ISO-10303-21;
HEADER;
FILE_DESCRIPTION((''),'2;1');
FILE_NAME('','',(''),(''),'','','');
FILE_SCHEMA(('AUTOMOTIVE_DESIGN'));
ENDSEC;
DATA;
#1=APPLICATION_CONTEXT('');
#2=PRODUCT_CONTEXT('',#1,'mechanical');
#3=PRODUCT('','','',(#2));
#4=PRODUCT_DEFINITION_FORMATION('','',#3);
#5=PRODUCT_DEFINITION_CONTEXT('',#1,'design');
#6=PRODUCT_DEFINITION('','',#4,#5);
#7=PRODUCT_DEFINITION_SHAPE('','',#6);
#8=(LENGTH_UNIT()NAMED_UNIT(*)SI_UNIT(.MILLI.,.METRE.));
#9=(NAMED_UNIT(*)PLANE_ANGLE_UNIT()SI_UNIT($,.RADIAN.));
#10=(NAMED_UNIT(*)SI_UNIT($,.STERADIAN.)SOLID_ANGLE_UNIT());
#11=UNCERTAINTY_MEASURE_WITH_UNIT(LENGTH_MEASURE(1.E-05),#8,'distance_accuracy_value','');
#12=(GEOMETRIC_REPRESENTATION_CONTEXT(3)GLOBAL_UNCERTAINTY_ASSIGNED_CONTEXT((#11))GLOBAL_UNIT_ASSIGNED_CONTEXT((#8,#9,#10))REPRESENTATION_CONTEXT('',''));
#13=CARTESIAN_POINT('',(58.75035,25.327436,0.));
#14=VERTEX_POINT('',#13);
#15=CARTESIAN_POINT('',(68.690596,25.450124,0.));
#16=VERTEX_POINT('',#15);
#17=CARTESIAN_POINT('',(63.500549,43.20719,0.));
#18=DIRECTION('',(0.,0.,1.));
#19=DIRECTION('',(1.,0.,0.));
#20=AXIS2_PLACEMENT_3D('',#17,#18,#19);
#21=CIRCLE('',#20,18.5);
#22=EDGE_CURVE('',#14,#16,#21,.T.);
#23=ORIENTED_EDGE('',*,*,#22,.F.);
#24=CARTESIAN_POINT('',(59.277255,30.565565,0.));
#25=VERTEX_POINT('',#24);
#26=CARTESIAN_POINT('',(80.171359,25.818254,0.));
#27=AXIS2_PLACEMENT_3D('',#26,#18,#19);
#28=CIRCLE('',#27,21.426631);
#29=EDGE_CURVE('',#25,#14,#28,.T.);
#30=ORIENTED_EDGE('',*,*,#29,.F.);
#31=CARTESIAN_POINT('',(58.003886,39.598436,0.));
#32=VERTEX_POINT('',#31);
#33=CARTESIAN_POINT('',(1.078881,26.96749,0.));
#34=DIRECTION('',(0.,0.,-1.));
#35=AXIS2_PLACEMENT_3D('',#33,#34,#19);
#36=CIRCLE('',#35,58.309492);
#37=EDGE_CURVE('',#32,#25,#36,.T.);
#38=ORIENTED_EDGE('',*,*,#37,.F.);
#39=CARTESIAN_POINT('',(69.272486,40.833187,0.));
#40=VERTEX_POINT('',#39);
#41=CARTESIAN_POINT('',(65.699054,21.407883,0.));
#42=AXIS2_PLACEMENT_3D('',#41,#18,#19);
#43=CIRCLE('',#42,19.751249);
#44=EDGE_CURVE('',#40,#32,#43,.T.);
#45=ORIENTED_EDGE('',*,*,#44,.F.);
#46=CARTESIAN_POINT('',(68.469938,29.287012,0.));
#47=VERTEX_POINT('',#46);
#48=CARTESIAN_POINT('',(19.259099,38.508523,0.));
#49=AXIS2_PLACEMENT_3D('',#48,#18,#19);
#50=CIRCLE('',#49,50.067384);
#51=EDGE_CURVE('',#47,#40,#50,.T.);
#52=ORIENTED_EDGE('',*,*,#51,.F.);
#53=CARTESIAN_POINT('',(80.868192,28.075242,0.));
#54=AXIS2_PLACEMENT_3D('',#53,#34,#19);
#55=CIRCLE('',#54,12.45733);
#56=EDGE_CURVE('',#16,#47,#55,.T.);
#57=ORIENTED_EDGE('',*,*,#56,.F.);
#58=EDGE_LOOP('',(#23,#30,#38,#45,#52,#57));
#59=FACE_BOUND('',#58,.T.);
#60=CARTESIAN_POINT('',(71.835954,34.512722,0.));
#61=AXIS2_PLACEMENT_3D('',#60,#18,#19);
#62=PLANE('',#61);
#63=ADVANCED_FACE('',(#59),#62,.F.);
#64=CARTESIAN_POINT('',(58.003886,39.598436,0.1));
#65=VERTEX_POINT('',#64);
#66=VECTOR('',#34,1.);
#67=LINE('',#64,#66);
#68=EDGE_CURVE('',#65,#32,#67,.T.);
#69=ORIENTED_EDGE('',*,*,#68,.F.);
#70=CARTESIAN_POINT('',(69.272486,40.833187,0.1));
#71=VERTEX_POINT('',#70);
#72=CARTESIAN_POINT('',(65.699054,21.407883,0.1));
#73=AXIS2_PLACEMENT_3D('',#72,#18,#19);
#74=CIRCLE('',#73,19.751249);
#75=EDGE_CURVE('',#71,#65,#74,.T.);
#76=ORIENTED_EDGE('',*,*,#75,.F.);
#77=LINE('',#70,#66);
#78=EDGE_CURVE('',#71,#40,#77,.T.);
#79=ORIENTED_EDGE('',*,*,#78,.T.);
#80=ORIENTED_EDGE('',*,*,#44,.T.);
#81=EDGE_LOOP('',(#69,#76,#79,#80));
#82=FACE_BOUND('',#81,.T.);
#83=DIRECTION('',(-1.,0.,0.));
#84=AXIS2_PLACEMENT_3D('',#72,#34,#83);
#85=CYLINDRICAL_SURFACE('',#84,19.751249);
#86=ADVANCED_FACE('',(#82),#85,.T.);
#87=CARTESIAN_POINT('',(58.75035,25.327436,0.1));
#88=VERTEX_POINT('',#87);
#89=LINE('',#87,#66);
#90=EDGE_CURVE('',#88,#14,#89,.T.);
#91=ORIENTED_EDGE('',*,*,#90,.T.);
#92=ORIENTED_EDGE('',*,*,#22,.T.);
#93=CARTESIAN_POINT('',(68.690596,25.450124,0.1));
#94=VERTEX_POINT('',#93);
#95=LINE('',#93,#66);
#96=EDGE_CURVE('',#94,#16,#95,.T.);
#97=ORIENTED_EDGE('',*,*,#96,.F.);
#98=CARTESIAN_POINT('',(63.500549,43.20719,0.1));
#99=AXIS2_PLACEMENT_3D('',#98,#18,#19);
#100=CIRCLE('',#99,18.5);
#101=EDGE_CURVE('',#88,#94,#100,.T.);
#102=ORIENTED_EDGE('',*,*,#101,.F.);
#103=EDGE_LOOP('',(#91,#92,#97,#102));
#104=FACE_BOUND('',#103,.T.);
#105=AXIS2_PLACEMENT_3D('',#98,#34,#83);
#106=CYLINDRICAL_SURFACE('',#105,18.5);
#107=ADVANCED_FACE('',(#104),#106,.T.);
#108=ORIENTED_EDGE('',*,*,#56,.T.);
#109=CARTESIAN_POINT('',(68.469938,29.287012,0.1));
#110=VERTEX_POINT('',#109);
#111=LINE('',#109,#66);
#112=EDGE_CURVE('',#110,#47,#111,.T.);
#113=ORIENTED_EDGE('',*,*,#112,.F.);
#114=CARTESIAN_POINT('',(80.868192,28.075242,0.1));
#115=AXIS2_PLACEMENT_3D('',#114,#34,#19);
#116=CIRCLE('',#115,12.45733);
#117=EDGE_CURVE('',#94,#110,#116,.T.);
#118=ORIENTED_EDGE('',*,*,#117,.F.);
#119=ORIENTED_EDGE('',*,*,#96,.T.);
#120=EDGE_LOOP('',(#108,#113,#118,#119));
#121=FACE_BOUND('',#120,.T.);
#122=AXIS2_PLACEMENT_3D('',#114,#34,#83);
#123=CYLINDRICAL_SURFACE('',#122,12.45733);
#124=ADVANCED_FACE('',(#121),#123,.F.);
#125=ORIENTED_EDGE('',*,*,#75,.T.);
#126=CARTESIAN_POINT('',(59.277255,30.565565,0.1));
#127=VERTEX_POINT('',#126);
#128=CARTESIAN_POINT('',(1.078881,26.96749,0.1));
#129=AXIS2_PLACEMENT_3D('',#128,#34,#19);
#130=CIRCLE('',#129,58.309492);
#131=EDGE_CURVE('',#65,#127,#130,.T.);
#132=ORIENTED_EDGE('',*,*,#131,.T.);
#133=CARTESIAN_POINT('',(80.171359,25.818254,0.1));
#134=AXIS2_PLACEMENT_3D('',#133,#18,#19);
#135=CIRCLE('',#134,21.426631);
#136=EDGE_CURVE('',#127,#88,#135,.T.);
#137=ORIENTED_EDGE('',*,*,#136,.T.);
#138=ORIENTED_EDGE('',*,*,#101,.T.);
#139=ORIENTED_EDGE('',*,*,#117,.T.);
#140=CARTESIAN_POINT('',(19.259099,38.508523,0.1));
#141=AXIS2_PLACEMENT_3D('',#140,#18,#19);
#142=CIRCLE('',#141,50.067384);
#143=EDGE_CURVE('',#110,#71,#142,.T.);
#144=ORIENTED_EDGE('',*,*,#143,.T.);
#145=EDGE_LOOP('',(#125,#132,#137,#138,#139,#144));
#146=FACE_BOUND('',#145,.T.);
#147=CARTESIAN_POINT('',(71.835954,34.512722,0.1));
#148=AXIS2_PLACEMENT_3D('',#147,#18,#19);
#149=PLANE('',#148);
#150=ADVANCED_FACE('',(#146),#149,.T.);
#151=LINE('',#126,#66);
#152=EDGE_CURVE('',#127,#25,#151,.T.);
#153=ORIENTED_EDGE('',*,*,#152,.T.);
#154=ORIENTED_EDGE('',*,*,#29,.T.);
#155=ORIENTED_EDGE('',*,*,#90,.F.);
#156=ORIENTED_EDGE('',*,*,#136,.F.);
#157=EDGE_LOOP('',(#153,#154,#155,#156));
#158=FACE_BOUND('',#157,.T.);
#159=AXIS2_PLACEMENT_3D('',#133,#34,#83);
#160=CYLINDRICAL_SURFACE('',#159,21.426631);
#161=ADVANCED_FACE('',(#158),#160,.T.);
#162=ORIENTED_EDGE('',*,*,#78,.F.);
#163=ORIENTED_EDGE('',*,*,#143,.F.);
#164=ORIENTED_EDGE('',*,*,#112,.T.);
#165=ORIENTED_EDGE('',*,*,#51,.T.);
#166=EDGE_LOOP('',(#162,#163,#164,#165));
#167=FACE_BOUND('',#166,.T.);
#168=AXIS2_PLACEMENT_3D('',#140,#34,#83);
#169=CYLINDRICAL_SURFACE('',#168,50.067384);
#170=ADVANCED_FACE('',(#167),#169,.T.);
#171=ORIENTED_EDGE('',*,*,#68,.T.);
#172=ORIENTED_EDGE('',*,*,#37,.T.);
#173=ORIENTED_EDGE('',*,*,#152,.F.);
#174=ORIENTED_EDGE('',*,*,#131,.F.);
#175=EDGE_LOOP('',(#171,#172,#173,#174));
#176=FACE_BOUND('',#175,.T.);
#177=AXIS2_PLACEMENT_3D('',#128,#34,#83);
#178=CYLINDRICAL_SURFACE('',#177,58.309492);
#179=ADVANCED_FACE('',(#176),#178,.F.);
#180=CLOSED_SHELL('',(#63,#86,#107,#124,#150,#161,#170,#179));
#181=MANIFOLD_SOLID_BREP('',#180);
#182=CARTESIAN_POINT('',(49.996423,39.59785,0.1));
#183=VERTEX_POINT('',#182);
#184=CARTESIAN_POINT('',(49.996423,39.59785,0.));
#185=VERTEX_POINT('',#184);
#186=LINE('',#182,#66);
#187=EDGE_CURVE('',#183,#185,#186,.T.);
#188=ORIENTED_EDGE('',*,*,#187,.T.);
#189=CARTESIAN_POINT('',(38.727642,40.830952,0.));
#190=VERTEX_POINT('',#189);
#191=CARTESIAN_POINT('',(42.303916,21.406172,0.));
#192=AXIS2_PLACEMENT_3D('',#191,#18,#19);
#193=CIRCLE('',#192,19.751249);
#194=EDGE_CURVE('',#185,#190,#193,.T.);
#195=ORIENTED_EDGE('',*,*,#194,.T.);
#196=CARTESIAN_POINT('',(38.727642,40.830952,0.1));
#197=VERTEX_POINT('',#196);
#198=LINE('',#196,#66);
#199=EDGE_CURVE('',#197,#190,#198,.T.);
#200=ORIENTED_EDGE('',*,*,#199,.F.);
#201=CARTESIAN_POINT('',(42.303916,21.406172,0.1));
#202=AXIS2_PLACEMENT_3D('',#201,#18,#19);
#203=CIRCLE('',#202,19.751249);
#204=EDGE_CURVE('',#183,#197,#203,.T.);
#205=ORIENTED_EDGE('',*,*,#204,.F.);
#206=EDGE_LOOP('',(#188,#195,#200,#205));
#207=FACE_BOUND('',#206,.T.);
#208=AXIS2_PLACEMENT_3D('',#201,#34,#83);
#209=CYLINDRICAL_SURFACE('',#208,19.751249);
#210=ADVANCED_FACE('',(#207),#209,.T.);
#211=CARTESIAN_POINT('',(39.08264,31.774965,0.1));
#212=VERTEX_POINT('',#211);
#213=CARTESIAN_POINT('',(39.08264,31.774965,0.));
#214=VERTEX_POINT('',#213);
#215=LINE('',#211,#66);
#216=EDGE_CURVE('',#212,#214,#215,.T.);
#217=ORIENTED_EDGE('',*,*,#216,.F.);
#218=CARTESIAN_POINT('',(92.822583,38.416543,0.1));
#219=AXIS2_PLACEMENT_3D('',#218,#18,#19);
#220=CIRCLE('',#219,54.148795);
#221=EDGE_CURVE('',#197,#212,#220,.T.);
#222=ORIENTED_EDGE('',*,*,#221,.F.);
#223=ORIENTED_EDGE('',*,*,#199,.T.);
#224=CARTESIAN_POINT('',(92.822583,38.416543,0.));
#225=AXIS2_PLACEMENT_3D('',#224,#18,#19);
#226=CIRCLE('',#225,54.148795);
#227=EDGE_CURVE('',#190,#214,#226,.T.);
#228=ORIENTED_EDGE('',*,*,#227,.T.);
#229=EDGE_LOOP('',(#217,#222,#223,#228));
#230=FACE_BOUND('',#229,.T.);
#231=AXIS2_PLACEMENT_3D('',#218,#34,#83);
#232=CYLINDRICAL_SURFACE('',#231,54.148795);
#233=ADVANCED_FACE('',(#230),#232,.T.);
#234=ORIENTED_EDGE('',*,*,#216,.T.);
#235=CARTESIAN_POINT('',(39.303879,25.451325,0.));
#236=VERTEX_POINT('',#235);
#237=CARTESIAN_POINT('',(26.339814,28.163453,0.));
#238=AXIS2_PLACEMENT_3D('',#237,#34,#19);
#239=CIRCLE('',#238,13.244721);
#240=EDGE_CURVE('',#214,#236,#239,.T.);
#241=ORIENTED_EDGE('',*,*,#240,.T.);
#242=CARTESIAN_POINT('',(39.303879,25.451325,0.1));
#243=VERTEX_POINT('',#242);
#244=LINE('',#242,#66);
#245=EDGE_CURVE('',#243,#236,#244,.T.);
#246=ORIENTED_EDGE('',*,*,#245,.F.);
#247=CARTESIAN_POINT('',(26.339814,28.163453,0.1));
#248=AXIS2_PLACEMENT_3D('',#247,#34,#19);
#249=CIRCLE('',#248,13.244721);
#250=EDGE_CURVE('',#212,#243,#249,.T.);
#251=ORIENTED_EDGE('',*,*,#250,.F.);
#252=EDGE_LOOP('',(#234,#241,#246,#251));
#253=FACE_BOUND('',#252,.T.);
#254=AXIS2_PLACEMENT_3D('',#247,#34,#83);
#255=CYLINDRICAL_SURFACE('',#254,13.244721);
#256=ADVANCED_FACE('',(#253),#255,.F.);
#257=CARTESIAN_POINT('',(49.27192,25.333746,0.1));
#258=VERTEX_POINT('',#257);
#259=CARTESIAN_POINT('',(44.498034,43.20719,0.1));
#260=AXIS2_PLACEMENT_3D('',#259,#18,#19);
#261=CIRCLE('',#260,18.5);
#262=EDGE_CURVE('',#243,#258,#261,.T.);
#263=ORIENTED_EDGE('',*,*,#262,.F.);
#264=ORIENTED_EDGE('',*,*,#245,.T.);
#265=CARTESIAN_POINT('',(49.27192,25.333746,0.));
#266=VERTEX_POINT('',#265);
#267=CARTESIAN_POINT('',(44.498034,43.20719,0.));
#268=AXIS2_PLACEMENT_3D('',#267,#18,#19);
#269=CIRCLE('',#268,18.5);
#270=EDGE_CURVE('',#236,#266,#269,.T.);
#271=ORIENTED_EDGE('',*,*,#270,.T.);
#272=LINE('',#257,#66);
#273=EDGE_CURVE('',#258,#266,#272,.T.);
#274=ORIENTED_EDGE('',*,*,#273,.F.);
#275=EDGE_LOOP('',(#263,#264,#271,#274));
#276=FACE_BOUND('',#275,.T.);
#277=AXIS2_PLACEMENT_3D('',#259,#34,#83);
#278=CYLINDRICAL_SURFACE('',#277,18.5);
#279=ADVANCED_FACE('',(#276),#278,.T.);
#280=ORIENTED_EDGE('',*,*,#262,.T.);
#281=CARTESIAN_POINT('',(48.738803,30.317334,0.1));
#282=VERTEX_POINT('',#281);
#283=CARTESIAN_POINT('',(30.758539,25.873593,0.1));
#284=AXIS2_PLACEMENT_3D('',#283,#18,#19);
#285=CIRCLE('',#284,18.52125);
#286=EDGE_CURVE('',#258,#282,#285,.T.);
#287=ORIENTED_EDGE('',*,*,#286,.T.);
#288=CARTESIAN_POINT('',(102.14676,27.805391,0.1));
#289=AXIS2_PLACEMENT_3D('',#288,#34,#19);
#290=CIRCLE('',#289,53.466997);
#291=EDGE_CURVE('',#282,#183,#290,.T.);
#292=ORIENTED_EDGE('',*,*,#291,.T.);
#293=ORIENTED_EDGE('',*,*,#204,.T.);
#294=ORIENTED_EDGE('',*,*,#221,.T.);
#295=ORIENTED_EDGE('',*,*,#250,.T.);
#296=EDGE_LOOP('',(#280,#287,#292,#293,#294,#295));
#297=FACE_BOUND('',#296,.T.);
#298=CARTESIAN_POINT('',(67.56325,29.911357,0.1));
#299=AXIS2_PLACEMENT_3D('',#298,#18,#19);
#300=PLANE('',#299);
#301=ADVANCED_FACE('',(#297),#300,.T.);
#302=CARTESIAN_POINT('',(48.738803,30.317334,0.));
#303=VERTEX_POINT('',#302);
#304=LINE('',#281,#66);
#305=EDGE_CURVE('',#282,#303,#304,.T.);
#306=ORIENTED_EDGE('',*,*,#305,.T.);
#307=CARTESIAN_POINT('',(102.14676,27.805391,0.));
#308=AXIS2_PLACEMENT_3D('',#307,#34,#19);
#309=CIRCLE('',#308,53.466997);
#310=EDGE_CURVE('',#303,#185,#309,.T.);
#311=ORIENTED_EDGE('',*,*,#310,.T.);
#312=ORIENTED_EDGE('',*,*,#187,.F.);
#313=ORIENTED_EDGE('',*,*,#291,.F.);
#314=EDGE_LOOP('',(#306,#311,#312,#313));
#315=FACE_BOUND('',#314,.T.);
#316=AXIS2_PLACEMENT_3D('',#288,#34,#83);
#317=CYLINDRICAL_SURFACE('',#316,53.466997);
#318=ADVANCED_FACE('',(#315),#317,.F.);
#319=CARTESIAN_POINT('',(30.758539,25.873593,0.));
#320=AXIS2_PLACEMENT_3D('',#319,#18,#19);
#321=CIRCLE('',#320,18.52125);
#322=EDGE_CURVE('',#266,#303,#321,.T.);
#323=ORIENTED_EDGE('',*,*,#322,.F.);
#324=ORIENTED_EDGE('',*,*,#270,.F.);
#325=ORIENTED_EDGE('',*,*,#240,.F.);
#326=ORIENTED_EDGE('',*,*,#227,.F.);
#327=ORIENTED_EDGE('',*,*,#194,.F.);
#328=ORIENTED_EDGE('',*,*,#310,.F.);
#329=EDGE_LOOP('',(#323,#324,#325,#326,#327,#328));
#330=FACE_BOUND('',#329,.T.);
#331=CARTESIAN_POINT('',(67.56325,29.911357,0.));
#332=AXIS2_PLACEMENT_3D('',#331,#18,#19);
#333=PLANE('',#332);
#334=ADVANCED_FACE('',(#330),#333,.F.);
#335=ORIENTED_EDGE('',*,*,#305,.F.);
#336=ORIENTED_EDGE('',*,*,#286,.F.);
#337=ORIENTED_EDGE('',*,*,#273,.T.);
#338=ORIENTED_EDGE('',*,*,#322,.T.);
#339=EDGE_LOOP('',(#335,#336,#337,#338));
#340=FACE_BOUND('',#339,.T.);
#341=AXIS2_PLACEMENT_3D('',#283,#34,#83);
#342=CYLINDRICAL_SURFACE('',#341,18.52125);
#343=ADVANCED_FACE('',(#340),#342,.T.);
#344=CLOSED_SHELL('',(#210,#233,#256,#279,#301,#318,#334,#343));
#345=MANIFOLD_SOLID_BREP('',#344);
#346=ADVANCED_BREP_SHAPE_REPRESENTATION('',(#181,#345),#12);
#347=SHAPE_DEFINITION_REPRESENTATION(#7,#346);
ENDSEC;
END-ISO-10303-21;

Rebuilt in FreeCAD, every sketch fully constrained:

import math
import FreeCAD as App
import Part
import Sketcher
from FreeCAD import Vector

doc = App.newDocument("Part")
params = doc.addObject("Spreadsheet::Sheet", "Params")
for row, (alias, value) in enumerate([
    ("sketch1_radius", "18.5 mm"),
    ("pad1_length", "0.1 mm"),
    ("sketch2_radius", "18.5 mm"),
    ("pad2_length", "0.1 mm"),
], start=1):
    params.set(f"A{row}", alias)
    params.set(f"B{row}", "=" + value)
    params.setAlias(f"B{row}", alias)

body = doc.addObject("PartDesign::Body", "Body")

# Sketch on XY plane
sketch1 = body.newObject("Sketcher::SketchObject", "Sketch")
sketch1.AttachmentSupport = (doc.getObject("XY_Plane"), [""])
sketch1.MapMode = "FlatFace"
sketch1.addGeometry(Part.ArcOfCircle(Part.Circle(Vector(93, 38, 0), Vector(0, 0, 1), 54), math.radians(177.44), math.radians(187.05)), False)
sketch1.addGeometry(Part.ArcOfCircle(Part.Circle(Vector(26, 28, 0), Vector(0, 0, 1), 13), math.radians(-12), math.radians(16)), False)
sketch1.addGeometry(Part.ArcOfCircle(Part.Circle(Vector(44, 43, 0), Vector(0, 0, 1), 18), math.radians(-106), math.radians(-75)), False)
sketch1.addGeometry(Part.ArcOfCircle(Part.Circle(Vector(31, 26, 0), Vector(0, 0, 1), 19), math.radians(-1.67), math.radians(13.88)), False)
sketch1.addGeometry(Part.ArcOfCircle(Part.Circle(Vector(102, 28, 0), Vector(0, 0, 1), 53), math.radians(167.26), math.radians(177.31)), False)
sketch1.addGeometry(Part.ArcOfCircle(Part.Circle(Vector(42, 21, 0), Vector(0, 0, 1), 20), math.radians(67), math.radians(100)), False)
sketch1.addConstraint(Sketcher.Constraint("Coincident", 0, 2, 1, 2))
sketch1.addConstraint(Sketcher.Constraint("Coincident", 1, 1, 2, 1))
sketch1.addConstraint(Sketcher.Constraint("Coincident", 2, 2, 3, 1))
sketch1.addConstraint(Sketcher.Constraint("Coincident", 3, 2, 4, 2))
sketch1.addConstraint(Sketcher.Constraint("Coincident", 4, 1, 5, 1))
sketch1.addConstraint(Sketcher.Constraint("Coincident", 5, 2, 0, 1))
sketch1.addConstraint(Sketcher.Constraint("Radius", 2, 18.5))
sketch1.addConstraint(Sketcher.Constraint("Radius", 1, 13.244721))
sketch1.addConstraint(Sketcher.Constraint("Radius", 3, 18.521251))
sketch1.addConstraint(Sketcher.Constraint("Radius", 5, 19.751249))
sketch1.addConstraint(Sketcher.Constraint("Radius", 0, 54.148795))
sketch1.addConstraint(Sketcher.Constraint("Radius", 4, 53.466997))
sketch1.addConstraint(Sketcher.Constraint("DistanceX", 5, 2, 0, 2, 0.354998))
sketch1.addConstraint(Sketcher.Constraint("DistanceY", 4, 3, 2, 3, 15.401799))
sketch1.addConstraint(Sketcher.Constraint("DistanceY", 3, 3, 4, 3, 1.931799))
sketch1.addConstraint(Sketcher.Constraint("DistanceX", 3, 3, 0, 2, 8.324101))
sketch1.addConstraint(Sketcher.Constraint("DistanceY", 4, 1, 5, 2, 1.233102))
sketch1.addConstraint(Sketcher.Constraint("DistanceY", -1, 1, 2, 3, 43.20719))
sketch1.addConstraint(Sketcher.Constraint("DistanceX", -1, 1, 3, 3, 30.758539))
sketch1.addConstraint(Sketcher.Constraint("DistanceX", -1, 1, 4, 3, 102.14676))
sketch1.addConstraint(Sketcher.Constraint("DistanceY", -1, 1, 5, 3, 21.406172))
sketch1.addConstraint(Sketcher.Constraint("DistanceX", -1, 1, 1, 1, 39.303879))
sketch1.addConstraint(Sketcher.Constraint("DistanceX", 1, 3, 0, 3, 66.482769))
sketch1.addConstraint(Sketcher.Constraint("DistanceY", 1, 3, 0, 3, 10.253089))
sketch1.setExpression("Constraints[6]", "Params.sketch1_radius")
pad1 = body.newObject("PartDesign::Pad", "Pad")
pad1.Profile = sketch1
pad1.setExpression("Length", "Params.pad1_length")
body2 = doc.addObject("PartDesign::Body", "Body001")

# Sketch on XY plane
sketch2 = body2.newObject("Sketcher::SketchObject", "Sketch001")
sketch2.AttachmentSupport = (doc.getObject("XY_Plane001"), [""])
sketch2.MapMode = "FlatFace"
sketch2.addGeometry(Part.ArcOfCircle(Part.Circle(Vector(1.1, 27, 0), Vector(0, 0, 1), 58.3), math.radians(3.54), math.radians(12.51)), False)
sketch2.addGeometry(Part.ArcOfCircle(Part.Circle(Vector(80.2, 25.8, 0), Vector(0, 0, 1), 21.4), math.radians(167.2), math.radians(181.31)), False)
sketch2.addGeometry(Part.ArcOfCircle(Part.Circle(Vector(63.5, 43.2, 0), Vector(0, 0, 1), 18.5), math.radians(-105), math.radians(-74)), False)
sketch2.addGeometry(Part.ArcOfCircle(Part.Circle(Vector(80.9, 28.1, 0), Vector(0, 0, 1), 12.5), math.radians(174.42), math.radians(192.17)), False)
sketch2.addGeometry(Part.ArcOfCircle(Part.Circle(Vector(19.3, 38.5, 0), Vector(0, 0, 1), 50.1), math.radians(-10.61), math.radians(2.66)), False)
sketch2.addGeometry(Part.ArcOfCircle(Part.Circle(Vector(65.7, 21.4, 0), Vector(0, 0, 1), 19.8), math.radians(80), math.radians(113)), False)
sketch2.addConstraint(Sketcher.Constraint("Coincident", 0, 1, 1, 1))
sketch2.addConstraint(Sketcher.Constraint("Coincident", 1, 2, 2, 1))
sketch2.addConstraint(Sketcher.Constraint("Coincident", 2, 2, 3, 2))
sketch2.addConstraint(Sketcher.Constraint("Coincident", 3, 1, 4, 1))
sketch2.addConstraint(Sketcher.Constraint("Coincident", 4, 2, 5, 1))
sketch2.addConstraint(Sketcher.Constraint("Coincident", 5, 2, 0, 2))
sketch2.addConstraint(Sketcher.Constraint("Radius", 2, 18.5))
sketch2.addConstraint(Sketcher.Constraint("Radius", 1, 21.426631))
sketch2.addConstraint(Sketcher.Constraint("Radius", 3, 12.45733))
sketch2.addConstraint(Sketcher.Constraint("Radius", 5, 19.751249))
sketch2.addConstraint(Sketcher.Constraint("Radius", 0, 58.309492))
sketch2.addConstraint(Sketcher.Constraint("Radius", 4, 50.067384))
sketch2.addConstraint(Sketcher.Constraint("DistanceY", 1, 2, 5, 2, 14.271))
sketch2.addConstraint(Sketcher.Constraint("DistanceX", -1, 1, 4, 3, 19.259099))
sketch2.addConstraint(Sketcher.Constraint("DistanceY", 0, 3, 2, 3, 16.2397))
sketch2.addConstraint(Sketcher.Constraint("DistanceX", 0, 1, 5, 3, 6.421799))
sketch2.addConstraint(Sketcher.Constraint("DistanceX", 1, 2, 2, 3, 4.750199))
sketch2.addConstraint(Sketcher.Constraint("DistanceX", 5, 2, 4, 2, 11.268601))
sketch2.addConstraint(Sketcher.Constraint("DistanceX", -1, 1, 0, 3, 1.078881))
sketch2.addConstraint(Sketcher.Constraint("DistanceY", -1, 1, 0, 3, 26.96749))
sketch2.addConstraint(Sketcher.Constraint("DistanceX", -1, 1, 1, 3, 80.171359))
sketch2.addConstraint(Sketcher.Constraint("DistanceX", -1, 1, 2, 3, 63.500549))
sketch2.addConstraint(Sketcher.Constraint("DistanceX", -1, 1, 3, 3, 80.868192))
sketch2.addConstraint(Sketcher.Constraint("DistanceY", -1, 1, 3, 1, 29.287012))
sketch2.setExpression("Constraints[6]", "Params.sketch2_radius")
pad2 = body2.newObject("PartDesign::Pad", "Pad001")
pad2.Profile = sketch2
pad2.setExpression("Length", "Params.pad2_length")

doc.recompute()
